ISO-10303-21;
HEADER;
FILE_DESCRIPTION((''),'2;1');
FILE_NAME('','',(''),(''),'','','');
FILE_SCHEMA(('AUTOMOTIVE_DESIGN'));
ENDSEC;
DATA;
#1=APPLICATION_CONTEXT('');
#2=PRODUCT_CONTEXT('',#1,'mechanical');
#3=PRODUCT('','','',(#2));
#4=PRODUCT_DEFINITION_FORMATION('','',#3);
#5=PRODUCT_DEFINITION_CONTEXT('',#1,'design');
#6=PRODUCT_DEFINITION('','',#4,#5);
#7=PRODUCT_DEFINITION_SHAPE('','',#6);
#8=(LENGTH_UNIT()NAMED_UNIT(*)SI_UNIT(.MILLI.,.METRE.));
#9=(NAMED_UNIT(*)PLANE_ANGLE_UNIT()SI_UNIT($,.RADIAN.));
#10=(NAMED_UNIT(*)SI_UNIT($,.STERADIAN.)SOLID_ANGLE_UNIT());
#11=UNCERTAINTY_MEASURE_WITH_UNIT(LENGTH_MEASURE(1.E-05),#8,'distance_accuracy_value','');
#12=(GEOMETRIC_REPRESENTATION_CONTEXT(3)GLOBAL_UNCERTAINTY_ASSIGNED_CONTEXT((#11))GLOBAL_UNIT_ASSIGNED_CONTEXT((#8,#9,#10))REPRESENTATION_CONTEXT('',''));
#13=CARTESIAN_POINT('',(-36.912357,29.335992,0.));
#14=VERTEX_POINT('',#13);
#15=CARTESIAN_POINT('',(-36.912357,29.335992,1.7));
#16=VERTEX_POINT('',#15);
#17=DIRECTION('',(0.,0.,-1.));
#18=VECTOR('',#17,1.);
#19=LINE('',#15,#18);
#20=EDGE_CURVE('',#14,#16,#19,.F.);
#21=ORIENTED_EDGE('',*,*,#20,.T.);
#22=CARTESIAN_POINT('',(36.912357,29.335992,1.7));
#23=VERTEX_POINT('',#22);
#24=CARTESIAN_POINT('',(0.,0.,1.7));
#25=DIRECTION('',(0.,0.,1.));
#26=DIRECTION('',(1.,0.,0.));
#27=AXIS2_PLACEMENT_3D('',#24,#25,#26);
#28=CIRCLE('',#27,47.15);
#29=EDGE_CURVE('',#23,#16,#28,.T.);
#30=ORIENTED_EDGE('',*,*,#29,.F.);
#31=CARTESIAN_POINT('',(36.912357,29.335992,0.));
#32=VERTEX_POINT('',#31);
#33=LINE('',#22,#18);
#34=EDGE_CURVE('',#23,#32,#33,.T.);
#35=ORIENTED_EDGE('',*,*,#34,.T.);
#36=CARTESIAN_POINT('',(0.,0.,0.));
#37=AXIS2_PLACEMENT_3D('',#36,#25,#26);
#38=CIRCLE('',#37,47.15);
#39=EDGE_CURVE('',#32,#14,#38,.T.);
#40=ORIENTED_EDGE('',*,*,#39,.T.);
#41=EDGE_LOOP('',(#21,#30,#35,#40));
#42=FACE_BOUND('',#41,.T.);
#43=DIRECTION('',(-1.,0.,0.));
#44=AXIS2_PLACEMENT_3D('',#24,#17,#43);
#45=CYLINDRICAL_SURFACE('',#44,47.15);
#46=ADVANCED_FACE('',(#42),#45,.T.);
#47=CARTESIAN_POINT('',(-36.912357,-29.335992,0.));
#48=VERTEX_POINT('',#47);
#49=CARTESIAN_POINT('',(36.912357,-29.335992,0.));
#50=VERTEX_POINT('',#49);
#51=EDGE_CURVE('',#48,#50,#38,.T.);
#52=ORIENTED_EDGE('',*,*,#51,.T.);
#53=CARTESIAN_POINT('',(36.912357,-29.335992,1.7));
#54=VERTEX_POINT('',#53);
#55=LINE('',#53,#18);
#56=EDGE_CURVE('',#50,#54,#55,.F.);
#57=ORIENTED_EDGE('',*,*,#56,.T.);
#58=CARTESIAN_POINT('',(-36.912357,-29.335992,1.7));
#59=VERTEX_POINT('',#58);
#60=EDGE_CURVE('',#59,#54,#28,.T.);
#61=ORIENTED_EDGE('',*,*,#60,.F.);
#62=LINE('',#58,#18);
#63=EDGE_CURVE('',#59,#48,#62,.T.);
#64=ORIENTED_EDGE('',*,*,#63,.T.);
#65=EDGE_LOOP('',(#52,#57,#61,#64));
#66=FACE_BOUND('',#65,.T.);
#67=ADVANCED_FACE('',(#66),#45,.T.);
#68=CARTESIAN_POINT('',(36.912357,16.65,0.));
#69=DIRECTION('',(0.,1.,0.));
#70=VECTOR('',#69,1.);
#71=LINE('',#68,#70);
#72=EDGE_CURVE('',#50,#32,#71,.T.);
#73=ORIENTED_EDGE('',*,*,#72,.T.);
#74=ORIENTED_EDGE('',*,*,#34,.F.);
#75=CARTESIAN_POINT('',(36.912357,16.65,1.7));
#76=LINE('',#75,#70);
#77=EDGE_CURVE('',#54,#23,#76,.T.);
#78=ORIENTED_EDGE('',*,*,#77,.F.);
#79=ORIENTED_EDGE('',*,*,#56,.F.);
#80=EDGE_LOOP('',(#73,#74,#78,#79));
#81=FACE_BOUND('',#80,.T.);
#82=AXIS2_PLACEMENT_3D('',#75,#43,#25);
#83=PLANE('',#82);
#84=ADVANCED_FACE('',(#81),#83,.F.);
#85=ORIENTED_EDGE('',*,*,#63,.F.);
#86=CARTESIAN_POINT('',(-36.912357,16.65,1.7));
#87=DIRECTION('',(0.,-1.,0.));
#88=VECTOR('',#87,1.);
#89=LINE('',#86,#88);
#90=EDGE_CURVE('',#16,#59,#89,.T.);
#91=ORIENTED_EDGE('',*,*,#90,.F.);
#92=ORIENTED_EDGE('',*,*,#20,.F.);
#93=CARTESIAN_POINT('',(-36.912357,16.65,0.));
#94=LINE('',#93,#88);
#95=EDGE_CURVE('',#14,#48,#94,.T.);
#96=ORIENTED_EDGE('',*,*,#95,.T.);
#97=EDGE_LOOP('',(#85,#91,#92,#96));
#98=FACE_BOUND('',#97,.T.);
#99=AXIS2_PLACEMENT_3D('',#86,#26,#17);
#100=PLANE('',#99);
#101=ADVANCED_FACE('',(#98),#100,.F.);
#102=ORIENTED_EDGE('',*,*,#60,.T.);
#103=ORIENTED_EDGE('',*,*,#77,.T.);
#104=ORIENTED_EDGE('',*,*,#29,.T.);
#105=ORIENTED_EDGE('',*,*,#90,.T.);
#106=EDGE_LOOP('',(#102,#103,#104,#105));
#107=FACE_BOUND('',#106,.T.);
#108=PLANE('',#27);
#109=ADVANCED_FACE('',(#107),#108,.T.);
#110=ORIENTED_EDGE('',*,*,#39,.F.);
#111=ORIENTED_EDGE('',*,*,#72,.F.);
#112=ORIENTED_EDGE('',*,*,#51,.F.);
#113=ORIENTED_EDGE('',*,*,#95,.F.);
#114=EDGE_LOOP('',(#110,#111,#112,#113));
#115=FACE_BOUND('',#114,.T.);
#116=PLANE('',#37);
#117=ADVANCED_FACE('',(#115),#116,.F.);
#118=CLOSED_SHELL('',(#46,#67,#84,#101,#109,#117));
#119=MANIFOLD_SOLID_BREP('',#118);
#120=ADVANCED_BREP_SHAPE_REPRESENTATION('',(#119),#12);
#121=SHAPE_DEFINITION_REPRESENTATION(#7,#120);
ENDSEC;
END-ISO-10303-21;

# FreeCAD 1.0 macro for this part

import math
import FreeCAD as App
import Part
import Sketcher

V = App.Vector
Q = App.Units.Quantity

doc = App.newDocument("Part")
body = doc.addObject("PartDesign::Body", "Body")

# Sketch on XY plane
sketch1 = body.newObject("Sketcher::SketchObject", "Sketch")
sketch1.AttachmentSupport = (doc.getObject("XY_Plane"), [""])
sketch1.MapMode = "FlatFace"
sketch1.addGeometry(Part.LineSegment(V(-44.112357, 16.65, 0), V(-36.912357, 16.65, 0)), False)
sketch1.addGeometry(Part.LineSegment(V(-36.912357, 16.65, 0), V(-36.912357, -16.65, 0)), False)
sketch1.addGeometry(Part.LineSegment(V(-36.912357, -16.65, 0), V(-44.112357, -16.65, 0)), False)
sketch1.addGeometry(Part.ArcOfCircle(Part.Circle(V(0, 0, 0), V(0, 0, 1), 47.15), math.radians(-159.321223), math.radians(-20.678777)), False)
sketch1.addGeometry(Part.LineSegment(V(44.112357, -16.65, 0), V(36.912357, -16.65, 0)), False)
sketch1.addGeometry(Part.LineSegment(V(36.912357, -16.65, 0), V(36.912357, 16.65, 0)), False)
sketch1.addGeometry(Part.LineSegment(V(36.912357, 16.65, 0), V(44.112357, 16.65, 0)), False)
sketch1.addGeometry(Part.ArcOfCircle(Part.Circle(V(0, 0, 0), V(0, 0, 1), 47.15), math.radians(20.678777), math.radians(159.321223)), False)
sketch1.addConstraint(Sketcher.Constraint("Coincident", 0, 2, 1, 1))
sketch1.addConstraint(Sketcher.Constraint("Coincident", 1, 2, 2, 1))
sketch1.addConstraint(Sketcher.Constraint("Coincident", 2, 2, 3, 1))
sketch1.addConstraint(Sketcher.Constraint("Coincident", 3, 2, 4, 1))
sketch1.addConstraint(Sketcher.Constraint("Coincident", 4, 2, 5, 1))
sketch1.addConstraint(Sketcher.Constraint("Coincident", 5, 2, 6, 1))
sketch1.addConstraint(Sketcher.Constraint("Coincident", 6, 2, 7, 1))
sketch1.addConstraint(Sketcher.Constraint("Coincident", 7, 2, 0, 1))
sketch1.addConstraint(Sketcher.Constraint("Horizontal", 0))
sketch1.addConstraint(Sketcher.Constraint("Vertical", 1))
sketch1.addConstraint(Sketcher.Constraint("Horizontal", 2))
sketch1.addConstraint(Sketcher.Constraint("Horizontal", 4))
sketch1.addConstraint(Sketcher.Constraint("Vertical", 5))
sketch1.addConstraint(Sketcher.Constraint("Horizontal", 6))
sketch1.addConstraint(Sketcher.Constraint("Coincident", 3, 3, -1, 1))
sketch1.addConstraint(Sketcher.Constraint("Coincident", 7, 3, -1, 1))
sketch1.addConstraint(Sketcher.Constraint("Equal", 3, 7))
sketch1.addConstraint(Sketcher.Constraint("Symmetric", 0, 2, 4, 2, -1, 1))
sketch1.addConstraint(Sketcher.Constraint("Horizontal", 2, 2, 3, 2))
sketch1.addConstraint(Sketcher.Constraint("Horizontal", 0, 2, 5, 2))
sketch1.addConstraint(Sketcher.Constraint("Radius", 3, Q("47.15 mm")))
sketch1.addConstraint(Sketcher.Constraint("DistanceX", 0, 1, 0, 2, Q("7.2 mm")))
sketch1.addConstraint(Sketcher.Constraint("DistanceY", 1, 2, 1, 1, Q("33.3 mm")))
pad1 = body.newObject("PartDesign::Pad", "Pad")
pad1.Profile = sketch1
pad1.Length = 1.7

# Sketch on XY plane
sketch2 = body.newObject("Sketcher::SketchObject", "Sketch001")
sketch2.AttachmentSupport = (doc.getObject("XY_Plane"), [""])
sketch2.MapMode = "FlatFace"
sketch2.addGeometry(Part.LineSegment(V(48.799879, 42.485322, 0), V(48.799879, -45.550641, 0)), False)
sketch2.addGeometry(Part.LineSegment(V(48.799879, -45.550641, 0), V(36.912357, -45.550641, 0)), False)
sketch2.addGeometry(Part.LineSegment(V(36.912357, -45.550641, 0), V(36.912357, 42.485322, 0)), False)
sketch2.addGeometry(Part.LineSegment(V(36.912357, 42.485322, 0), V(48.799879, 42.485322, 0)), False)
sketch2.addGeometry(Part.LineSegment(V(-36.912357, 42.485322, 0), V(-36.912357, -45.550641, 0)), False)
sketch2.addGeometry(Part.LineSegment(V(-36.912357, -45.550641, 0), V(-48.799879, -45.550641, 0)), False)
sketch2.addGeometry(Part.LineSegment(V(-48.799879, -45.550641, 0), V(-48.799879, 42.485322, 0)), False)
sketch2.addGeometry(Part.LineSegment(V(-48.799879, 42.485322, 0), V(-36.912357, 42.485322, 0)), False)
sketch2.addConstraint(Sketcher.Constraint("Coincident", 0, 2, 1, 1))
sketch2.addConstraint(Sketcher.Constraint("Coincident", 1, 2, 2, 1))
sketch2.addConstraint(Sketcher.Constraint("Coincident", 2, 2, 3, 1))
sketch2.addConstraint(Sketcher.Constraint("Coincident", 3, 2, 0, 1))
sketch2.addConstraint(Sketcher.Constraint("Coincident", 4, 2, 5, 1))
sketch2.addConstraint(Sketcher.Constraint("Coincident", 5, 2, 6, 1))
sketch2.addConstraint(Sketcher.Constraint("Coincident", 6, 2, 7, 1))
sketch2.addConstraint(Sketcher.Constraint("Coincident", 7, 2, 4, 1))
sketch2.addConstraint(Sketcher.Constraint("Vertical", 0))
sketch2.addConstraint(Sketcher.Constraint("Horizontal", 1))
sketch2.addConstraint(Sketcher.Constraint("Vertical", 2))
sketch2.addConstraint(Sketcher.Constraint("Horizontal", 3))
sketch2.addConstraint(Sketcher.Constraint("Vertical", 4))
sketch2.addConstraint(Sketcher.Constraint("Horizontal", 5))
sketch2.addConstraint(Sketcher.Constraint("Vertical", 6))
sketch2.addConstraint(Sketcher.Constraint("Horizontal", 7))
sketch2.addConstraint(Sketcher.Constraint("Symmetric", 1, 2, 4, 2, -2))
sketch2.addConstraint(Sketcher.Constraint("Symmetric", 3, 2, 6, 2, -2))
sketch2.addConstraint(Sketcher.Constraint("DistanceX", 1, 2, 1, 1, Q("11.887523 mm")))
sketch2.addConstraint(Sketcher.Constraint("DistanceY", 0, 2, 0, 1, Q("88.035963 mm")))
sketch2.addConstraint(Sketcher.Constraint("DistanceX", -1, 1, 0, 2, Q("48.799879 mm")))
sketch2.addConstraint(Sketcher.Constraint("DistanceY", 0, 2, -1, 1, Q("45.550641 mm")))
pocket1 = body.newObject("PartDesign::Pocket", "Pocket")
pocket1.Profile = sketch2
pocket1.Length = 10
pocket1.Reversed = True

doc.recompute()
